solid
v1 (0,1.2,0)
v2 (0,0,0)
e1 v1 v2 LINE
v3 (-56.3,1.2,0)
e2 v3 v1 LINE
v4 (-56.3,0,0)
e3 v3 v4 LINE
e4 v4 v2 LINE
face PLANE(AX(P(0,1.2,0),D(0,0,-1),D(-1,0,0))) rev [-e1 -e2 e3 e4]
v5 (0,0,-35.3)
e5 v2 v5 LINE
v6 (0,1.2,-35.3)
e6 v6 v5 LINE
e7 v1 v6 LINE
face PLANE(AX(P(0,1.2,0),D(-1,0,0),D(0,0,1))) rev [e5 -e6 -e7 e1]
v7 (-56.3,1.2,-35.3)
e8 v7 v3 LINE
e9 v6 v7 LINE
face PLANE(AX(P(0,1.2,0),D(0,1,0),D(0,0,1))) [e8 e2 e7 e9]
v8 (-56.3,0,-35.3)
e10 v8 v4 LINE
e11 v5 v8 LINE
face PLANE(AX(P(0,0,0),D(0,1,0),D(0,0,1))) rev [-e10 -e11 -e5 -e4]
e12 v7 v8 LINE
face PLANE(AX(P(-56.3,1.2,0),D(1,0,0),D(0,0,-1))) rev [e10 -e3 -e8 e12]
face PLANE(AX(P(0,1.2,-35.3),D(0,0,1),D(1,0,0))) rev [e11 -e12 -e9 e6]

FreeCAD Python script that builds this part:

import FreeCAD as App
import Part
import Sketcher

doc = App.newDocument("Part")
body = doc.addObject("PartDesign::Body", "Body")

sketch1 = body.newObject("Sketcher::SketchObject", "Sketch")
sketch1.AttachmentSupport = (doc.getObject("XZ_Plane"), [""])
sketch1.MapMode = "FlatFace"
sketch1.addGeometry([
    Part.LineSegment(App.Vector(-56, -35, 0), App.Vector(-56, 0, 0)),
    Part.LineSegment(App.Vector(-56, 0, 0), App.Vector(0, 0, 0)),
    Part.LineSegment(App.Vector(0, 0, 0), App.Vector(0, -35, 0)),
    Part.LineSegment(App.Vector(0, -35, 0), App.Vector(-56, -35, 0)),
], False)
sketch1.addConstraint([
    Sketcher.Constraint("Coincident", 0, 2, 1, 1),
    Sketcher.Constraint("Coincident", 1, 2, 2, 1),
    Sketcher.Constraint("Coincident", 2, 2, 3, 1),
    Sketcher.Constraint("Coincident", 3, 2, 0, 1),
    Sketcher.Constraint("Vertical", 0),
    Sketcher.Constraint("Horizontal", 1),
    Sketcher.Constraint("Vertical", 2),
    Sketcher.Constraint("Horizontal", 3),
    Sketcher.Constraint("Coincident", 1, 2, -1, 1),
    Sketcher.Constraint("DistanceX", 1, 1, 1, 2, 56.3),
    Sketcher.Constraint("DistanceY", 0, 1, 0, 2, 35.3),
])
pad1 = body.newObject("PartDesign::Pad", "Pad")
pad1.Profile = sketch1
pad1.Length = 1.2
pad1.Reversed = True

doc.recompute()
